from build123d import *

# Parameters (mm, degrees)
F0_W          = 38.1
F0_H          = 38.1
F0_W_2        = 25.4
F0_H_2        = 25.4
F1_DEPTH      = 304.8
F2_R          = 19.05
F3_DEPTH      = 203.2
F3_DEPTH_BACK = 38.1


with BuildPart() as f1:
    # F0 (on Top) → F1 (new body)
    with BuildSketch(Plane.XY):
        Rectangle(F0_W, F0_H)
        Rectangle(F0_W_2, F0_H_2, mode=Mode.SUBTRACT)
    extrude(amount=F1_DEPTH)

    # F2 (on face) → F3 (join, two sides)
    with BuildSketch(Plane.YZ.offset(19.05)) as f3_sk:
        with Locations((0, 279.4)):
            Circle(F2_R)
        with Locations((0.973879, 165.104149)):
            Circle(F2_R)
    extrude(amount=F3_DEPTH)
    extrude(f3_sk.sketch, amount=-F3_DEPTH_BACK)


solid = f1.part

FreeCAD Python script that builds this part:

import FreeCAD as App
import Part
import Sketcher

V = App.Vector
Q = App.Units.Quantity


def add_polygon(sketch, points):
    """Adds a closed chain of lines whose ends are joined by coincident constraints."""
    first, n = sketch.GeometryCount, len(points)
    for a, b in zip(points, points[1:] + points[:1]):
        sketch.addGeometry(Part.LineSegment(App.Vector(*a, 0), App.Vector(*b, 0)), False)
    for i in range(n):
        sketch.addConstraint(Sketcher.Constraint("Coincident", first + i, 2, first + (i + 1) % n, 1))

doc = App.newDocument("Part")
body = doc.addObject("PartDesign::Body", "Body")

sketch1 = body.newObject("Sketcher::SketchObject", "Sketch")
sketch1.AttachmentSupport = (doc.getObject("XY_Plane"), [""])
sketch1.MapMode = "FlatFace"
add_polygon(sketch1, [(-19, 19), (-19, -19), (19, -19), (19, 19)])
add_polygon(sketch1, [(13, -13), (-13, -13), (-13, 13), (13, 13)])
sketch1.addConstraint(Sketcher.Constraint("Vertical", 0))
sketch1.addConstraint(Sketcher.Constraint("Horizontal", 1))
sketch1.addConstraint(Sketcher.Constraint("Vertical", 2))
sketch1.addConstraint(Sketcher.Constraint("Horizontal", 3))
sketch1.addConstraint(Sketcher.Constraint("Horizontal", 4))
sketch1.addConstraint(Sketcher.Constraint("Vertical", 5))
sketch1.addConstraint(Sketcher.Constraint("Horizontal", 6))
sketch1.addConstraint(Sketcher.Constraint("Vertical", 7))
sketch1.addConstraint(Sketcher.Constraint("Symmetric", 0, 2, 2, 2, -1, 1))
sketch1.addConstraint(Sketcher.Constraint("Symmetric", 4, 2, 6, 2, -1, 1))
sketch1.addConstraint(Sketcher.Constraint("Equal", 3, 0))
sketch1.addConstraint(Sketcher.Constraint("Equal", 6, 5))
sketch1.addConstraint(Sketcher.Constraint("DistanceX", 4, 2, 4, 1, Q("1 in")))
sketch1.addConstraint(Sketcher.Constraint("DistanceX", 1, 1, 1, 2, Q("1.5 in")))
pad1 = body.newObject("PartDesign::Pad", "Pad")
pad1.Profile = sketch1
pad1.Length = Q("12 in")

sketch2 = body.newObject("Sketcher::SketchObject", "Sketch001")
sketch2.AttachmentSupport = (doc.getObject("YZ_Plane"), [""])
sketch2.MapMode = "FlatFace"
sketch2.AttachmentOffset = App.Placement(V(0, 0, 0.75 * 25.4), App.Rotation())
sketch2.addGeometry(Part.Circle(V(0, 279, 0), V(0, 0, 1), 19), False)
sketch2.addGeometry(Part.Circle(V(1, 165, 0), V(0, 0, 1), 19), False)
sketch2.addConstraint(Sketcher.Constraint("Equal", 0, 1))
sketch2.addConstraint(Sketcher.Constraint("PointOnObject", 0, 3, -2))
sketch2.addConstraint(Sketcher.Constraint("Diameter", 0, Q("1.5 in")))
sketch2.addConstraint(Sketcher.Constraint("DistanceY", -1, 1, 0, 3, Q("11 in")))
sketch2.addConstraint(Sketcher.Constraint("DistanceX", -1, 1, 1, 3, 0.973879))
sketch2.addConstraint(Sketcher.Constraint("DistanceY", -1, 1, 1, 3, 165.104149))
pad2 = body.newObject("PartDesign::Pad", "Pad001")
pad2.Profile = sketch2
pad2.Type = "TwoLengths"
pad2.Length = Q("8 in")
pad2.Length2 = Q("1.5 in")

doc.recompute()
